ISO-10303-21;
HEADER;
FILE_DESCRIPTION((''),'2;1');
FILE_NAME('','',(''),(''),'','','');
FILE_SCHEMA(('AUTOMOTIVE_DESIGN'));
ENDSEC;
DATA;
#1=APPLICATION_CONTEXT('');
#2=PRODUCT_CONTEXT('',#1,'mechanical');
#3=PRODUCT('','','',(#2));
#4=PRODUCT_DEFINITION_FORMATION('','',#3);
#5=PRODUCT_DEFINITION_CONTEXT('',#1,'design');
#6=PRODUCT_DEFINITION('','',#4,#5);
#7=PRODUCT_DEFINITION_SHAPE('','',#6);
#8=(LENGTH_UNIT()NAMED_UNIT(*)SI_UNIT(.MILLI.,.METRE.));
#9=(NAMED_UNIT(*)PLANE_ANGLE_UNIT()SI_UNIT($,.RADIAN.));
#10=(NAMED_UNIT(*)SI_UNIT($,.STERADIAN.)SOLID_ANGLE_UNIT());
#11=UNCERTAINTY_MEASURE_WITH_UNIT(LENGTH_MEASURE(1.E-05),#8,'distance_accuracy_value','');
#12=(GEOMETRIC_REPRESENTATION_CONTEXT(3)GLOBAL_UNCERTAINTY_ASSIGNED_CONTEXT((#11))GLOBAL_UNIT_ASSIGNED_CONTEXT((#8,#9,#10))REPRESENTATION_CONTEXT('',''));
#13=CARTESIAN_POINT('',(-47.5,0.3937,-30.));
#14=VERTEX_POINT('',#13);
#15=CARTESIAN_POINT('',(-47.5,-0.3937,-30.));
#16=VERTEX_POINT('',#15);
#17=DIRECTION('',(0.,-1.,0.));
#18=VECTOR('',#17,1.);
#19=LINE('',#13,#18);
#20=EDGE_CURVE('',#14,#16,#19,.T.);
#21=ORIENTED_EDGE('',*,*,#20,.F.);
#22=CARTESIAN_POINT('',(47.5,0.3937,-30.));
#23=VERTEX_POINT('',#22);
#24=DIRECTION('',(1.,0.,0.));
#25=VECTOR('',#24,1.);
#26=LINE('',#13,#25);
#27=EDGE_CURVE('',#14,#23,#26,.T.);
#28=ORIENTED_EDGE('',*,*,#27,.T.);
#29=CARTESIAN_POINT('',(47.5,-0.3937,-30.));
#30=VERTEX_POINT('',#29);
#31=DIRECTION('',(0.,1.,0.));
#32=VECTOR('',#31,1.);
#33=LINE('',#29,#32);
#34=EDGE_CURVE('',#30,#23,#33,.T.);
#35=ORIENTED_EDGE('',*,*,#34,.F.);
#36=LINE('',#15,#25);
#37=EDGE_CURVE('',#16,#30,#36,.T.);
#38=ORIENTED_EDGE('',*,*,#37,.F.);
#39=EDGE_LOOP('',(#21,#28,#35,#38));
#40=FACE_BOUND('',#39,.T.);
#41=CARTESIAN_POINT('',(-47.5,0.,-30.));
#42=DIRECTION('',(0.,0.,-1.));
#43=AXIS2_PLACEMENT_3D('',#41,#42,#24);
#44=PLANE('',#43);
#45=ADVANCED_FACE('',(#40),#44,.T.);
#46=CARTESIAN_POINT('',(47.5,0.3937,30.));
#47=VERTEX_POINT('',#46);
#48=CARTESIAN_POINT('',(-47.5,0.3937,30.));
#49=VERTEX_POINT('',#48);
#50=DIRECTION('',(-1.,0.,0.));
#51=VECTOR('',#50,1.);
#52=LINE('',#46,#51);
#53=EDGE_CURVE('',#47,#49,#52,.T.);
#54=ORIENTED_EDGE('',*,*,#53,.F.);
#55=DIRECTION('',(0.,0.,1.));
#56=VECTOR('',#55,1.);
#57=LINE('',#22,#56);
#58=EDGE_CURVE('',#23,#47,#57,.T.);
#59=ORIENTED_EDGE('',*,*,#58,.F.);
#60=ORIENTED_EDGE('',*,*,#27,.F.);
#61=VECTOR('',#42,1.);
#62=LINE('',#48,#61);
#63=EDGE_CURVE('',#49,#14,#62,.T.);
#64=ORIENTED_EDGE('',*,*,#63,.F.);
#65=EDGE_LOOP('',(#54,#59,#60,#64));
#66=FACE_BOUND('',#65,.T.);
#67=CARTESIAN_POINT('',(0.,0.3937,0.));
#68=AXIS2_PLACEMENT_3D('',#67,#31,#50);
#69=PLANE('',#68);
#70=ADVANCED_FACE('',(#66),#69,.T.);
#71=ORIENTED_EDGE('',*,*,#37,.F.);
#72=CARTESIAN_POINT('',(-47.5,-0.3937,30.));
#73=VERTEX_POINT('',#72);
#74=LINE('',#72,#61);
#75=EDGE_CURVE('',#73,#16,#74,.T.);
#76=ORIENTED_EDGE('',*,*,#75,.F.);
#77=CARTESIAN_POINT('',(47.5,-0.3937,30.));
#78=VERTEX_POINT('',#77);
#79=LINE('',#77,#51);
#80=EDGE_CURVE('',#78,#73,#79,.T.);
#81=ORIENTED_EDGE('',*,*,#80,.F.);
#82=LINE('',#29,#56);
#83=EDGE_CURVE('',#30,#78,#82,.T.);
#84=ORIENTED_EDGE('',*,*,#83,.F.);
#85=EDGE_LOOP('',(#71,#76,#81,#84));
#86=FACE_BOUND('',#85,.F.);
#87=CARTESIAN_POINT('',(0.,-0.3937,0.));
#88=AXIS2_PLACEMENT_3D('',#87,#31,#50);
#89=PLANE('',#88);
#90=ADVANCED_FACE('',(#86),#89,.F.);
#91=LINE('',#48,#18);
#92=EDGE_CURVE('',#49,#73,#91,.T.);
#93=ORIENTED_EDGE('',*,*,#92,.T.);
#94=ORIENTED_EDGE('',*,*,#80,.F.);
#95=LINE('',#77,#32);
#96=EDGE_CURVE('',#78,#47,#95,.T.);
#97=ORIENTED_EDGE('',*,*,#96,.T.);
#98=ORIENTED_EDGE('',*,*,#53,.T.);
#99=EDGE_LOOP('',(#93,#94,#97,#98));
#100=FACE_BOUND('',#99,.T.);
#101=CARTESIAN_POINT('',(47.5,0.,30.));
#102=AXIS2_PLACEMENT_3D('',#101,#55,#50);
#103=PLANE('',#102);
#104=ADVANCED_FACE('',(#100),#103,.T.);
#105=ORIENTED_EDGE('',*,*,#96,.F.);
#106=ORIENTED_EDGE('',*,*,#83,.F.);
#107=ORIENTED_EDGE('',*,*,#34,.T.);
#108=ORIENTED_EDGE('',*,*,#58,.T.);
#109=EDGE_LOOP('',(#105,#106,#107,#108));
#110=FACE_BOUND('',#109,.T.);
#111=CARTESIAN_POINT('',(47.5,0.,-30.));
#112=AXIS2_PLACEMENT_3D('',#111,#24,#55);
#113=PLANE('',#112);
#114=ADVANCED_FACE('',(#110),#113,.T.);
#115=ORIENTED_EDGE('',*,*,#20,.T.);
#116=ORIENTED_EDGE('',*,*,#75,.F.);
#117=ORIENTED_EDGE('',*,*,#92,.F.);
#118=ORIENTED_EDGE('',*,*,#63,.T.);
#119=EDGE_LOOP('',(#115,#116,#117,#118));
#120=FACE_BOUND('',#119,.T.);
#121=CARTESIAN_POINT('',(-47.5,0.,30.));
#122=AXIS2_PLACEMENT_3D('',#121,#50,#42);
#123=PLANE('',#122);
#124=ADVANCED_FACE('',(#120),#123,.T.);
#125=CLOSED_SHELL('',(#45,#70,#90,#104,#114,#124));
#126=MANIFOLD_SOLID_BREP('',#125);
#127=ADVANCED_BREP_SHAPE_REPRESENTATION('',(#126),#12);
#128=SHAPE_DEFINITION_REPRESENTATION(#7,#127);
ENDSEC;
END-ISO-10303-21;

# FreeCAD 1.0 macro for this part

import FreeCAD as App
import Part
import Sketcher
from FreeCAD import Vector


def add_polygon(sketch, points):
    """Adds a closed chain of lines whose ends are joined by coincident constraints."""
    first, n = sketch.GeometryCount, len(points)
    for a, b in zip(points, points[1:] + points[:1]):
        sketch.addGeometry(Part.LineSegment(App.Vector(*a, 0), App.Vector(*b, 0)), False)
    for i in range(n):
        sketch.addConstraint(Sketcher.Constraint("Coincident", first + i, 2, first + (i + 1) % n, 1))

doc = App.newDocument("Part")
body = doc.addObject("PartDesign::Body", "Body")

# Sketch on XZ plane
sketch1 = body.newObject("Sketcher::SketchObject", "Sketch")
sketch1.AttachmentSupport = (doc.getObject("XZ_Plane"), [""])
sketch1.MapMode = "FlatFace"
add_polygon(sketch1, [(-47.5, 30), (47.5, 30), (47.5, -30), (-47.5, -30)])  # lines 0-3
sketch1.addConstraint([
    Sketcher.Constraint("Horizontal", 0),
    Sketcher.Constraint("Vertical", 1),
    Sketcher.Constraint("Horizontal", 2),
    Sketcher.Constraint("Vertical", 3),
    Sketcher.Constraint("Symmetric", 0, 2, 2, 2, -1, 1),
    Sketcher.Constraint("DistanceX", 0, 1, 0, 2, 95.0),
    Sketcher.Constraint("DistanceY", 1, 2, 1, 1, 60.0),
])
pad1 = body.newObject("PartDesign::Pad", "Pad")
pad1.Profile = sketch1
pad1.Length = 0.7874
pad1.Midplane = True

doc.recompute()
